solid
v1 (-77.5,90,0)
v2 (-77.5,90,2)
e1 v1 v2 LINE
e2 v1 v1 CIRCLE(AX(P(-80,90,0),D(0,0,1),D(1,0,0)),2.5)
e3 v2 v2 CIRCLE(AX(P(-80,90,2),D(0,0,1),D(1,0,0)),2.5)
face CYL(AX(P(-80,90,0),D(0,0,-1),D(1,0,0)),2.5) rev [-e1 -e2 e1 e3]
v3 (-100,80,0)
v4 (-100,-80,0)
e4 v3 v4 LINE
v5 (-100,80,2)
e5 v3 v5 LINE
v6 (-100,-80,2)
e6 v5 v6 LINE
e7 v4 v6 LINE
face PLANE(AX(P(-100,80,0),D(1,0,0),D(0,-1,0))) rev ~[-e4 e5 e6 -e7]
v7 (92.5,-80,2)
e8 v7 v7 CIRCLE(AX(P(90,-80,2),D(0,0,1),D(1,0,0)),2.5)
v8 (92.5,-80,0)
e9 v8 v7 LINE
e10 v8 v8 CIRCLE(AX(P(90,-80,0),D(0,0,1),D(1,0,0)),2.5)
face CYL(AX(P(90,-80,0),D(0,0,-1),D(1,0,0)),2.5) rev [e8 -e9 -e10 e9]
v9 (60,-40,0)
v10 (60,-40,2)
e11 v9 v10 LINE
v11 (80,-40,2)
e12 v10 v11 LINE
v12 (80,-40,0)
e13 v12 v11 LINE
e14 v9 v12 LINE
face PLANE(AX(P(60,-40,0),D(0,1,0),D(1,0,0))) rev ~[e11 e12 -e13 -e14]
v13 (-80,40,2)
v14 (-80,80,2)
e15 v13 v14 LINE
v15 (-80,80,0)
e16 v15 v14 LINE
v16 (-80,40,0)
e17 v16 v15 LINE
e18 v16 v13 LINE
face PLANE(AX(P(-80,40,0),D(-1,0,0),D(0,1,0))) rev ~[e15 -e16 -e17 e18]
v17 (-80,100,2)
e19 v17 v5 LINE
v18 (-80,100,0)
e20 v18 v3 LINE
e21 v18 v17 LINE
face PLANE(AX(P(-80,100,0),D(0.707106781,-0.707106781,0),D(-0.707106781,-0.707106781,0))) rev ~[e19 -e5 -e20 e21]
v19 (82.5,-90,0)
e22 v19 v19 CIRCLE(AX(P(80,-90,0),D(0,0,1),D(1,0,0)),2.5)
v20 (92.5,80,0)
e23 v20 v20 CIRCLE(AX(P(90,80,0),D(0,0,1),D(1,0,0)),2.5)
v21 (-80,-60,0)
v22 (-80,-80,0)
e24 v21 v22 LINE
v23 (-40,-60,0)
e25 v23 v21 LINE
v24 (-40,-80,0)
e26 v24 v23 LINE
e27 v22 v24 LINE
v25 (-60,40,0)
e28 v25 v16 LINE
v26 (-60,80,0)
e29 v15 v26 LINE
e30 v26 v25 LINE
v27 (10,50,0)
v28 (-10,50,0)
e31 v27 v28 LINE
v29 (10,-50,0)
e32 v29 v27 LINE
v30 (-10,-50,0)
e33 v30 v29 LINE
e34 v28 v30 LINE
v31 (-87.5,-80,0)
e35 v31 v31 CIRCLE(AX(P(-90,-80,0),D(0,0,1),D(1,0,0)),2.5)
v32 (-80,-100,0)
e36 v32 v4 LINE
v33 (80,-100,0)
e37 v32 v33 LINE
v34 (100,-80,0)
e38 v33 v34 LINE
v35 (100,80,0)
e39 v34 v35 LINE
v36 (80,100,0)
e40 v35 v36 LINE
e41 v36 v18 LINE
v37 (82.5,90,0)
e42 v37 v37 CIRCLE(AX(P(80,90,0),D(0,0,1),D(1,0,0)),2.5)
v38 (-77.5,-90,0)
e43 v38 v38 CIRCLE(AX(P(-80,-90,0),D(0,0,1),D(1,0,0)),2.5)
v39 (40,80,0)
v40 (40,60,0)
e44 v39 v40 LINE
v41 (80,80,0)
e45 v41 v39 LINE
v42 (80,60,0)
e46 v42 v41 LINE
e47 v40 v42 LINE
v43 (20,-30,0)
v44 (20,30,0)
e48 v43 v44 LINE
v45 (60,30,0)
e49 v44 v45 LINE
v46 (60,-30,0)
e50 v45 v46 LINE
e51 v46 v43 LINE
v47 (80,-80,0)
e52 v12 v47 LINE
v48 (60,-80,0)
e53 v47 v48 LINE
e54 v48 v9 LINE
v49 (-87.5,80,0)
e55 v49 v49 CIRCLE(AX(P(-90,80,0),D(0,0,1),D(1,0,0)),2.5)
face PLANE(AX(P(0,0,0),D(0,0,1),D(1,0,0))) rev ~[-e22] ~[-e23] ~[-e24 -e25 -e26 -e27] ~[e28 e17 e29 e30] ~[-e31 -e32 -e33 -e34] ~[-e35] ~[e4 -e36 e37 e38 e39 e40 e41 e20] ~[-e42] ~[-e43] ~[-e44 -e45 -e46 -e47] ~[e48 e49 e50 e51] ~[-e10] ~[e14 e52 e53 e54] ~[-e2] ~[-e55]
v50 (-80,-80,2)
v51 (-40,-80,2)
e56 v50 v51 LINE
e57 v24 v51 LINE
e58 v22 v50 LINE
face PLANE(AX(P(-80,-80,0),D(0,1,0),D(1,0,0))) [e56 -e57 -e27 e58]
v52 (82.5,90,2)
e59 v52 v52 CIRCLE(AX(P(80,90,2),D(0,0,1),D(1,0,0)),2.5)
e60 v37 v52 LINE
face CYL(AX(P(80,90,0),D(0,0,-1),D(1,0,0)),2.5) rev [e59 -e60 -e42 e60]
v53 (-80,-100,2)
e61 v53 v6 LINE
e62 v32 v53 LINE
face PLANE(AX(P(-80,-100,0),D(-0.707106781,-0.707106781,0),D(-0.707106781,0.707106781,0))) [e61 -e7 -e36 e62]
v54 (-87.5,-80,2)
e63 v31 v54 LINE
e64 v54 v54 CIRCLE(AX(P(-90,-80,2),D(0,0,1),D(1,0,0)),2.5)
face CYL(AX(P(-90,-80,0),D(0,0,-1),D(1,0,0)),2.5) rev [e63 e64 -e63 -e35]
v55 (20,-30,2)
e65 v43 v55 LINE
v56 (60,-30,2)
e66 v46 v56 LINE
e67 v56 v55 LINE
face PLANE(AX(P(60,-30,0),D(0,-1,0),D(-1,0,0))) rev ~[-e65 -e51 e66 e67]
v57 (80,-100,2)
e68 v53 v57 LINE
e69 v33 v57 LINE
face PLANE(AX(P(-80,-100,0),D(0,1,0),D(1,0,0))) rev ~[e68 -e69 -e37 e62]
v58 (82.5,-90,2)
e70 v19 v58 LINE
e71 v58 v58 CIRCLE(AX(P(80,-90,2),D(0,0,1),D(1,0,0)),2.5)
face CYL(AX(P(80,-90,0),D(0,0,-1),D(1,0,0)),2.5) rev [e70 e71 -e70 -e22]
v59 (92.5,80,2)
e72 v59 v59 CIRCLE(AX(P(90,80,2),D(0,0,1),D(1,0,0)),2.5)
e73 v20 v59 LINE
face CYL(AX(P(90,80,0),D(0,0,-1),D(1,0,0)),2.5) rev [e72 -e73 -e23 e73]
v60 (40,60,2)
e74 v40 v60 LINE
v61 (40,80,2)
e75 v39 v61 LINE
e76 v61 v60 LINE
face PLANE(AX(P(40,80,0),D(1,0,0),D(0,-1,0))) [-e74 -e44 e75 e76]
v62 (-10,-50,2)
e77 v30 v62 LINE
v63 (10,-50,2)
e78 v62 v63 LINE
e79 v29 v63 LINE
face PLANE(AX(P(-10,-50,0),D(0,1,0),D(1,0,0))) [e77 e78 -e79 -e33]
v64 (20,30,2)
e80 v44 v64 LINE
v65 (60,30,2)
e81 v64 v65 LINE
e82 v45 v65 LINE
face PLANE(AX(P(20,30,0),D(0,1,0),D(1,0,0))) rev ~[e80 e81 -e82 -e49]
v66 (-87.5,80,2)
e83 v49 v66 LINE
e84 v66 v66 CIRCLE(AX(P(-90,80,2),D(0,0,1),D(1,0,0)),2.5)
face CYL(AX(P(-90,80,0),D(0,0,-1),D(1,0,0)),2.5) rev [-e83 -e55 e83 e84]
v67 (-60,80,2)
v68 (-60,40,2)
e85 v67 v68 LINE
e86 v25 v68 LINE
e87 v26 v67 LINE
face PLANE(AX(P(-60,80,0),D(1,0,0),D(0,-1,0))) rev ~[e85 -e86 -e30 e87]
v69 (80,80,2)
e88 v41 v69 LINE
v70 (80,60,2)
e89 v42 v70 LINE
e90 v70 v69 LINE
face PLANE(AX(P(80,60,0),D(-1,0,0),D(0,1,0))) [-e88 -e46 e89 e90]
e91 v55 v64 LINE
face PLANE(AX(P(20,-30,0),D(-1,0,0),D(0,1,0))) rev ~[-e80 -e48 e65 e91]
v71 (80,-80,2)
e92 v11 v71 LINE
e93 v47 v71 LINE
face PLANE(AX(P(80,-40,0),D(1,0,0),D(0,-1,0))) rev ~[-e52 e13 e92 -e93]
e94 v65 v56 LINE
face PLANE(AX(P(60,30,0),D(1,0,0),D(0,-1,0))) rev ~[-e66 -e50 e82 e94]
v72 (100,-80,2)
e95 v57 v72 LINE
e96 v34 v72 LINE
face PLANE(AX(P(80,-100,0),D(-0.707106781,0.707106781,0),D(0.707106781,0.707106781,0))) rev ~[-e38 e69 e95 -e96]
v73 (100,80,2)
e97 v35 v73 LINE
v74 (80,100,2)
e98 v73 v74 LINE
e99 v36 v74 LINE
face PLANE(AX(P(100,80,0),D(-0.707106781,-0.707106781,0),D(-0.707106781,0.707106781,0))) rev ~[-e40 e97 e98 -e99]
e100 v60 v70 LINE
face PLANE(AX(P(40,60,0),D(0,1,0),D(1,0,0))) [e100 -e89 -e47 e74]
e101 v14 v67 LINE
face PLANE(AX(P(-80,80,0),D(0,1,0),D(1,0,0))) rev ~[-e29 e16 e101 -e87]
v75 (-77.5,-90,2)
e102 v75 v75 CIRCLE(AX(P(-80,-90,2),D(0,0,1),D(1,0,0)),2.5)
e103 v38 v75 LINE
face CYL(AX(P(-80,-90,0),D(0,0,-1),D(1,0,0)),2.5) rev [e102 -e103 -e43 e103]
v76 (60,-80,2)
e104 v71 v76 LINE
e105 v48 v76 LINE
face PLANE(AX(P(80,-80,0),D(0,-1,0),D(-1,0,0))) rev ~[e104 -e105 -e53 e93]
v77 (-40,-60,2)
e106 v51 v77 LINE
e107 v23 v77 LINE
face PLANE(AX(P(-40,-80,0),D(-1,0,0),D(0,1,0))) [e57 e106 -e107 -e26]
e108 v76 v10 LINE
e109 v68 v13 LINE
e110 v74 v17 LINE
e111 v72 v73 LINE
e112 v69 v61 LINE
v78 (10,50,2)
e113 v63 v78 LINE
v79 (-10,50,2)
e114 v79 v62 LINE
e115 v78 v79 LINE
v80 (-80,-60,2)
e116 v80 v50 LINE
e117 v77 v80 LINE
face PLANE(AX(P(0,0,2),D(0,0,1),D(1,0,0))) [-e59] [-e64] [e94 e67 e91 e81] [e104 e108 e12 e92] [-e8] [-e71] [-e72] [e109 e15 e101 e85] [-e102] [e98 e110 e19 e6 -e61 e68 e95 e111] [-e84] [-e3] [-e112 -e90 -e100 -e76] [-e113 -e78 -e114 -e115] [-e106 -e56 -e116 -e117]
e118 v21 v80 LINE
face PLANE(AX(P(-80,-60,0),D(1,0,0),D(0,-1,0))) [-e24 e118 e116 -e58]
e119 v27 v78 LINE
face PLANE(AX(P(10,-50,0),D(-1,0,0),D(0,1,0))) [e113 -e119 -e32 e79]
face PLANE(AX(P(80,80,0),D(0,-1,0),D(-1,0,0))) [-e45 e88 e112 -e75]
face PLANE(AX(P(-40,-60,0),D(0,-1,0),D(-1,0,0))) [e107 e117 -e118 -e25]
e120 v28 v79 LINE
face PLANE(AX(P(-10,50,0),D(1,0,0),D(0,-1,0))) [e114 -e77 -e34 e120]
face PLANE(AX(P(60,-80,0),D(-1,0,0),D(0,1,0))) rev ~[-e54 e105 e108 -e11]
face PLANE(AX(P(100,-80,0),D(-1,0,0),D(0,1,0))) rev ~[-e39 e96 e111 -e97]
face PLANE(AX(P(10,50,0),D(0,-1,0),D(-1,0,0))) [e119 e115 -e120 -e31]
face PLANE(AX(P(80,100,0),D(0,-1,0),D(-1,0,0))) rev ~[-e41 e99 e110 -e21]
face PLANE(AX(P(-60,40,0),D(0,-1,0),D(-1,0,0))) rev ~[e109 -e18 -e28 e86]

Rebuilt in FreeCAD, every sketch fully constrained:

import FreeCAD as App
import Part
import Sketcher

doc = App.newDocument("Part")
body = doc.addObject("PartDesign::Body", "Body")

sketch1 = doc.addObject("Sketcher::SketchObject", "Sketch")
body.addObject(sketch1)
sketch1.AttachmentSupport = (doc.XY_Plane, [""])
sketch1.MapMode = "FlatFace"
sketch1.addGeometry(Part.LineSegment(App.Vector(-100, -80, 0), App.Vector(-80, -100, 0)), False)
sketch1.addGeometry(Part.LineSegment(App.Vector(-80, -100, 0), App.Vector(80, -100, 0)), False)
sketch1.addGeometry(Part.LineSegment(App.Vector(80, -100, 0), App.Vector(100, -80, 0)), False)
sketch1.addGeometry(Part.LineSegment(App.Vector(100, -80, 0), App.Vector(100, 80, 0)), False)
sketch1.addGeometry(Part.LineSegment(App.Vector(100, 80, 0), App.Vector(80, 100, 0)), False)
sketch1.addGeometry(Part.LineSegment(App.Vector(80, 100, 0), App.Vector(-80, 100, 0)), False)
sketch1.addGeometry(Part.LineSegment(App.Vector(-80, 100, 0), App.Vector(-100, 80, 0)), False)
sketch1.addGeometry(Part.LineSegment(App.Vector(-100, 80, 0), App.Vector(-100, -80, 0)), False)
sketch1.addGeometry(Part.Circle(App.Vector(-80, -90, 0), App.Vector(0, 0, 1), 2.5), False)
sketch1.addGeometry(Part.Circle(App.Vector(-90, -80, 0), App.Vector(0, 0, 1), 2.5), False)
sketch1.addGeometry(Part.LineSegment(App.Vector(-40, -80, 0), App.Vector(-80, -80, 0)), False)
sketch1.addGeometry(Part.LineSegment(App.Vector(-80, -80, 0), App.Vector(-80, -60, 0)), False)
sketch1.addGeometry(Part.LineSegment(App.Vector(-80, -60, 0), App.Vector(-40, -60, 0)), False)
sketch1.addGeometry(Part.LineSegment(App.Vector(-40, -60, 0), App.Vector(-40, -80, 0)), False)
sketch1.addGeometry(Part.Circle(App.Vector(80, -90, 0), App.Vector(0, 0, 1), 2.5), False)
sketch1.addGeometry(Part.Circle(App.Vector(90, -80, 0), App.Vector(0, 0, 1), 2.5), False)
sketch1.addGeometry(Part.LineSegment(App.Vector(80, -40, 0), App.Vector(80, -80, 0)), False)
sketch1.addGeometry(Part.LineSegment(App.Vector(80, -80, 0), App.Vector(60, -80, 0)), False)
sketch1.addGeometry(Part.LineSegment(App.Vector(60, -80, 0), App.Vector(60, -40, 0)), False)
sketch1.addGeometry(Part.LineSegment(App.Vector(60, -40, 0), App.Vector(80, -40, 0)), False)
sketch1.addGeometry(Part.LineSegment(App.Vector(-80, 40, 0), App.Vector(-80, 80, 0)), False)
sketch1.addGeometry(Part.LineSegment(App.Vector(-80, 80, 0), App.Vector(-60, 80, 0)), False)
sketch1.addGeometry(Part.LineSegment(App.Vector(-60, 80, 0), App.Vector(-60, 40, 0)), False)
sketch1.addGeometry(Part.LineSegment(App.Vector(-60, 40, 0), App.Vector(-80, 40, 0)), False)
sketch1.addGeometry(Part.Circle(App.Vector(-90, 80, 0), App.Vector(0, 0, 1), 2.5), False)
sketch1.addGeometry(Part.Circle(App.Vector(-80, 90, 0), App.Vector(0, 0, 1), 2.5), False)
sketch1.addGeometry(Part.LineSegment(App.Vector(10, -50, 0), App.Vector(-10, -50, 0)), False)
sketch1.addGeometry(Part.LineSegment(App.Vector(-10, -50, 0), App.Vector(-10, 50, 0)), False)
sketch1.addGeometry(Part.LineSegment(App.Vector(-10, 50, 0), App.Vector(10, 50, 0)), False)
sketch1.addGeometry(Part.LineSegment(App.Vector(10, 50, 0), App.Vector(10, -50, 0)), False)
sketch1.addGeometry(Part.LineSegment(App.Vector(60, 30, 0), App.Vector(60, -30, 0)), False)
sketch1.addGeometry(Part.LineSegment(App.Vector(60, -30, 0), App.Vector(20, -30, 0)), False)
sketch1.addGeometry(Part.LineSegment(App.Vector(20, -30, 0), App.Vector(20, 30, 0)), False)
sketch1.addGeometry(Part.LineSegment(App.Vector(20, 30, 0), App.Vector(60, 30, 0)), False)
sketch1.addGeometry(Part.LineSegment(App.Vector(40, 80, 0), App.Vector(80, 80, 0)), False)
sketch1.addGeometry(Part.LineSegment(App.Vector(80, 80, 0), App.Vector(80, 60, 0)), False)
sketch1.addGeometry(Part.LineSegment(App.Vector(80, 60, 0), App.Vector(40, 60, 0)), False)
sketch1.addGeometry(Part.LineSegment(App.Vector(40, 60, 0), App.Vector(40, 80, 0)), False)
sketch1.addGeometry(Part.Circle(App.Vector(90, 80, 0), App.Vector(0, 0, 1), 2.5), False)
sketch1.addGeometry(Part.Circle(App.Vector(80, 90, 0), App.Vector(0, 0, 1), 2.5), False)
sketch1.addConstraint(Sketcher.Constraint("Coincident", 0, 2, 1, 1))
sketch1.addConstraint(Sketcher.Constraint("Coincident", 1, 2, 2, 1))
sketch1.addConstraint(Sketcher.Constraint("Coincident", 2, 2, 3, 1))
sketch1.addConstraint(Sketcher.Constraint("Coincident", 3, 2, 4, 1))
sketch1.addConstraint(Sketcher.Constraint("Coincident", 4, 2, 5, 1))
sketch1.addConstraint(Sketcher.Constraint("Coincident", 5, 2, 6, 1))
sketch1.addConstraint(Sketcher.Constraint("Coincident", 6, 2, 7, 1))
sketch1.addConstraint(Sketcher.Constraint("Coincident", 7, 2, 0, 1))
sketch1.addConstraint(Sketcher.Constraint("Coincident", 10, 2, 11, 1))
sketch1.addConstraint(Sketcher.Constraint("Coincident", 11, 2, 12, 1))
sketch1.addConstraint(Sketcher.Constraint("Coincident", 12, 2, 13, 1))
sketch1.addConstraint(Sketcher.Constraint("Coincident", 13, 2, 10, 1))
sketch1.addConstraint(Sketcher.Constraint("Coincident", 16, 2, 17, 1))
sketch1.addConstraint(Sketcher.Constraint("Coincident", 17, 2, 18, 1))
sketch1.addConstraint(Sketcher.Constraint("Coincident", 18, 2, 19, 1))
sketch1.addConstraint(Sketcher.Constraint("Coincident", 19, 2, 16, 1))
sketch1.addConstraint(Sketcher.Constraint("Coincident", 20, 2, 21, 1))
sketch1.addConstraint(Sketcher.Constraint("Coincident", 21, 2, 22, 1))
sketch1.addConstraint(Sketcher.Constraint("Coincident", 22, 2, 23, 1))
sketch1.addConstraint(Sketcher.Constraint("Coincident", 23, 2, 20, 1))
sketch1.addConstraint(Sketcher.Constraint("Coincident", 26, 2, 27, 1))
sketch1.addConstraint(Sketcher.Constraint("Coincident", 27, 2, 28, 1))
sketch1.addConstraint(Sketcher.Constraint("Coincident", 28, 2, 29, 1))
sketch1.addConstraint(Sketcher.Constraint("Coincident", 29, 2, 26, 1))
sketch1.addConstraint(Sketcher.Constraint("Coincident", 30, 2, 31, 1))
sketch1.addConstraint(Sketcher.Constraint("Coincident", 31, 2, 32, 1))
sketch1.addConstraint(Sketcher.Constraint("Coincident", 32, 2, 33, 1))
sketch1.addConstraint(Sketcher.Constraint("Coincident", 33, 2, 30, 1))
sketch1.addConstraint(Sketcher.Constraint("Coincident", 34, 2, 35, 1))
sketch1.addConstraint(Sketcher.Constraint("Coincident", 35, 2, 36, 1))
sketch1.addConstraint(Sketcher.Constraint("Coincident", 36, 2, 37, 1))
sketch1.addConstraint(Sketcher.Constraint("Coincident", 37, 2, 34, 1))
sketch1.addConstraint(Sketcher.Constraint("Horizontal", 1))
sketch1.addConstraint(Sketcher.Constraint("Vertical", 3))
sketch1.addConstraint(Sketcher.Constraint("Horizontal", 5))
sketch1.addConstraint(Sketcher.Constraint("Vertical", 7))
sketch1.addConstraint(Sketcher.Constraint("Horizontal", 10))
sketch1.addConstraint(Sketcher.Constraint("Vertical", 11))
sketch1.addConstraint(Sketcher.Constraint("Horizontal", 12))
sketch1.addConstraint(Sketcher.Constraint("Vertical", 13))
sketch1.addConstraint(Sketcher.Constraint("Vertical", 16))
sketch1.addConstraint(Sketcher.Constraint("Horizontal", 17))
sketch1.addConstraint(Sketcher.Constraint("Vertical", 18))
sketch1.addConstraint(Sketcher.Constraint("Horizontal", 19))
sketch1.addConstraint(Sketcher.Constraint("Vertical", 20))
sketch1.addConstraint(Sketcher.Constraint("Horizontal", 21))
sketch1.addConstraint(Sketcher.Constraint("Vertical", 22))
sketch1.addConstraint(Sketcher.Constraint("Horizontal", 23))
sketch1.addConstraint(Sketcher.Constraint("Horizontal", 26))
sketch1.addConstraint(Sketcher.Constraint("Vertical", 27))
sketch1.addConstraint(Sketcher.Constraint("Horizontal", 28))
sketch1.addConstraint(Sketcher.Constraint("Vertical", 29))
sketch1.addConstraint(Sketcher.Constraint("Vertical", 30))
sketch1.addConstraint(Sketcher.Constraint("Horizontal", 31))
sketch1.addConstraint(Sketcher.Constraint("Vertical", 32))
sketch1.addConstraint(Sketcher.Constraint("Horizontal", 33))
sketch1.addConstraint(Sketcher.Constraint("Horizontal", 34))
sketch1.addConstraint(Sketcher.Constraint("Vertical", 35))
sketch1.addConstraint(Sketcher.Constraint("Horizontal", 36))
sketch1.addConstraint(Sketcher.Constraint("Vertical", 37))
sketch1.addConstraint(Sketcher.Constraint("Equal", 8, 9))
sketch1.addConstraint(Sketcher.Constraint("Equal", 9, 14))
sketch1.addConstraint(Sketcher.Constraint("Equal", 14, 15))
sketch1.addConstraint(Sketcher.Constraint("Equal", 15, 24))
sketch1.addConstraint(Sketcher.Constraint("Equal", 24, 25))
sketch1.addConstraint(Sketcher.Constraint("Equal", 25, 38))
sketch1.addConstraint(Sketcher.Constraint("Equal", 38, 39))
sketch1.addConstraint(Sketcher.Constraint("Symmetric", 15, 3, 24, 3, -1, 1))
sketch1.addConstraint(Sketcher.Constraint("Symmetric", 14, 3, 25, 3, -1, 1))
sketch1.addConstraint(Sketcher.Constraint("Symmetric", 9, 3, 38, 3, -1, 1))
sketch1.addConstraint(Sketcher.Constraint("Symmetric", 8, 3, 39, 3, -1, 1))
sketch1.addConstraint(Sketcher.Constraint("Symmetric", 0, 2, 4, 2, -1, 1))
sketch1.addConstraint(Sketcher.Constraint("Symmetric", 2, 2, 6, 2, -1, 1))
sketch1.addConstraint(Sketcher.Constraint("Symmetric", 16, 2, 20, 2, -1, 1))
sketch1.addConstraint(Sketcher.Constraint("Symmetric", 18, 2, 22, 2, -1, 1))
sketch1.addConstraint(Sketcher.Constraint("Symmetric", 26, 2, 28, 2, -1, 1))
sketch1.addConstraint(Sketcher.Constraint("Symmetric", 10, 2, 34, 2, -1, 1))
sketch1.addConstraint(Sketcher.Constraint("Symmetric", 12, 2, 36, 2, -1, 1))
sketch1.addConstraint(Sketcher.Constraint("Symmetric", 8, 3, 14, 3, -2))
sketch1.addConstraint(Sketcher.Constraint("Symmetric", 9, 3, 15, 3, -2))
sketch1.addConstraint(Sketcher.Constraint("Symmetric", 10, 2, 16, 2, -2))
sketch1.addConstraint(Sketcher.Constraint("Perpendicular", 0, 2))
sketch1.addConstraint(Sketcher.Constraint("Perpendicular", 2, 4))
sketch1.addConstraint(Sketcher.Constraint("Perpendicular", 4, 6))
sketch1.addConstraint(Sketcher.Constraint("Horizontal", 15, 3, 2, 2))
sketch1.addConstraint(Sketcher.Constraint("Horizontal", 38, 3, 3, 2))
sketch1.addConstraint(Sketcher.Constraint("Horizontal", 7, 2, 10, 2))
sketch1.addConstraint(Sketcher.Constraint("Vertical", 25, 3, 0, 2))
sketch1.addConstraint(Sketcher.Constraint("Vertical", 39, 3, 1, 2))
sketch1.addConstraint(Sketcher.Constraint("Vertical", 5, 2, 10, 2))
sketch1.addConstraint(Sketcher.Constraint("Vertical", 18, 2, 30, 2))
sketch1.addConstraint(Sketcher.Constraint("Equal", 23, 26))
sketch1.addConstraint(Sketcher.Constraint("Equal", 12, 31))
sketch1.addConstraint(Sketcher.Constraint("Equal", 5, 3))
sketch1.addConstraint(Sketcher.Constraint("Equal", 28, 11))
sketch1.addConstraint(Sketcher.Constraint("Equal", 36, 16))
sketch1.addConstraint(Sketcher.Constraint("Diameter", 8, 5.0))
sketch1.addConstraint(Sketcher.Constraint("DistanceX", 10, 2, 10, 1, 40.0))
sketch1.addConstraint(Sketcher.Constraint("DistanceX", 17, 2, 17, 1, 20.0))
sketch1.addConstraint(Sketcher.Constraint("DistanceY", 27, 1, 27, 2, 100.0))
sketch1.addConstraint(Sketcher.Constraint("DistanceY", 30, 2, 30, 1, 60.0))
sketch1.addConstraint(Sketcher.Constraint("DistanceY", 0, 2, -1, 1, 100.0))
sketch1.addConstraint(Sketcher.Constraint("DistanceY", 11, 2, -1, 1, 60.0))
sketch1.addConstraint(Sketcher.Constraint("DistanceY", 27, 2, 25, 3, 40.0))
sketch1.addConstraint(Sketcher.Constraint("DistanceY", 29, 2, 30, 2, 20.0))
sketch1.addConstraint(Sketcher.Constraint("DistanceX", 9, 3, -1, 1, 90.0))
pad1 = doc.addObject("PartDesign::Pad", "Pad")
body.addObject(pad1)
pad1.Profile = sketch1
pad1.Length = 2

doc.recompute()
